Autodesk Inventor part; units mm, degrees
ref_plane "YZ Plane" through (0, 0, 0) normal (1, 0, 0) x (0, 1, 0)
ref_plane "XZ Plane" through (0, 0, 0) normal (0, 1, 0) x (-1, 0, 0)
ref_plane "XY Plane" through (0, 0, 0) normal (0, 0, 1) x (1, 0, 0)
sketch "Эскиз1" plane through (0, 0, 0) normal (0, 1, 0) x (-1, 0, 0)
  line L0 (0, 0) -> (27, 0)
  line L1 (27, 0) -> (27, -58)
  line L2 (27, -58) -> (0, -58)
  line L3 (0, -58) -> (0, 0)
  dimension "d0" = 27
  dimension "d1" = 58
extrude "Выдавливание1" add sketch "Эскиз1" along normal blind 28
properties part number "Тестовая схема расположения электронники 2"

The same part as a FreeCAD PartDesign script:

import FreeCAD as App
import Part
import Sketcher

V = App.Vector

doc = App.newDocument("Part")
body = doc.addObject("PartDesign::Body", "Body")

sketch1 = body.newObject("Sketcher::SketchObject", "Sketch")
sketch1.AttachmentSupport = (doc.getObject("XZ_Plane"), [""])
sketch1.MapMode = "FlatFace"
sketch1.addGeometry(Part.LineSegment(V(-27, 0, 0), V(0, 0, 0)), False)
sketch1.addGeometry(Part.LineSegment(V(0, 0, 0), V(0, -58, 0)), False)
sketch1.addGeometry(Part.LineSegment(V(0, -58, 0), V(-27, -58, 0)), False)
sketch1.addGeometry(Part.LineSegment(V(-27, -58, 0), V(-27, 0, 0)), False)
sketch1.addConstraint(Sketcher.Constraint("Coincident", 0, 2, 1, 1))
sketch1.addConstraint(Sketcher.Constraint("Coincident", 1, 2, 2, 1))
sketch1.addConstraint(Sketcher.Constraint("Coincident", 2, 2, 3, 1))
sketch1.addConstraint(Sketcher.Constraint("Coincident", 3, 2, 0, 1))
sketch1.addConstraint(Sketcher.Constraint("Horizontal", 0))
sketch1.addConstraint(Sketcher.Constraint("Vertical", 1))
sketch1.addConstraint(Sketcher.Constraint("Horizontal", 2))
sketch1.addConstraint(Sketcher.Constraint("Vertical", 3))
sketch1.addConstraint(Sketcher.Constraint("Coincident", 0, 2, -1, 1))
sketch1.addConstraint(Sketcher.Constraint("DistanceX", 0, 1, 0, 2, 27.0))
sketch1.addConstraint(Sketcher.Constraint("DistanceY", 1, 2, 1, 1, 58.0))
pad1 = body.newObject("PartDesign::Pad", "Pad")
pad1.Profile = sketch1
pad1.Length = 28
pad1.Reversed = True

doc.recompute()
